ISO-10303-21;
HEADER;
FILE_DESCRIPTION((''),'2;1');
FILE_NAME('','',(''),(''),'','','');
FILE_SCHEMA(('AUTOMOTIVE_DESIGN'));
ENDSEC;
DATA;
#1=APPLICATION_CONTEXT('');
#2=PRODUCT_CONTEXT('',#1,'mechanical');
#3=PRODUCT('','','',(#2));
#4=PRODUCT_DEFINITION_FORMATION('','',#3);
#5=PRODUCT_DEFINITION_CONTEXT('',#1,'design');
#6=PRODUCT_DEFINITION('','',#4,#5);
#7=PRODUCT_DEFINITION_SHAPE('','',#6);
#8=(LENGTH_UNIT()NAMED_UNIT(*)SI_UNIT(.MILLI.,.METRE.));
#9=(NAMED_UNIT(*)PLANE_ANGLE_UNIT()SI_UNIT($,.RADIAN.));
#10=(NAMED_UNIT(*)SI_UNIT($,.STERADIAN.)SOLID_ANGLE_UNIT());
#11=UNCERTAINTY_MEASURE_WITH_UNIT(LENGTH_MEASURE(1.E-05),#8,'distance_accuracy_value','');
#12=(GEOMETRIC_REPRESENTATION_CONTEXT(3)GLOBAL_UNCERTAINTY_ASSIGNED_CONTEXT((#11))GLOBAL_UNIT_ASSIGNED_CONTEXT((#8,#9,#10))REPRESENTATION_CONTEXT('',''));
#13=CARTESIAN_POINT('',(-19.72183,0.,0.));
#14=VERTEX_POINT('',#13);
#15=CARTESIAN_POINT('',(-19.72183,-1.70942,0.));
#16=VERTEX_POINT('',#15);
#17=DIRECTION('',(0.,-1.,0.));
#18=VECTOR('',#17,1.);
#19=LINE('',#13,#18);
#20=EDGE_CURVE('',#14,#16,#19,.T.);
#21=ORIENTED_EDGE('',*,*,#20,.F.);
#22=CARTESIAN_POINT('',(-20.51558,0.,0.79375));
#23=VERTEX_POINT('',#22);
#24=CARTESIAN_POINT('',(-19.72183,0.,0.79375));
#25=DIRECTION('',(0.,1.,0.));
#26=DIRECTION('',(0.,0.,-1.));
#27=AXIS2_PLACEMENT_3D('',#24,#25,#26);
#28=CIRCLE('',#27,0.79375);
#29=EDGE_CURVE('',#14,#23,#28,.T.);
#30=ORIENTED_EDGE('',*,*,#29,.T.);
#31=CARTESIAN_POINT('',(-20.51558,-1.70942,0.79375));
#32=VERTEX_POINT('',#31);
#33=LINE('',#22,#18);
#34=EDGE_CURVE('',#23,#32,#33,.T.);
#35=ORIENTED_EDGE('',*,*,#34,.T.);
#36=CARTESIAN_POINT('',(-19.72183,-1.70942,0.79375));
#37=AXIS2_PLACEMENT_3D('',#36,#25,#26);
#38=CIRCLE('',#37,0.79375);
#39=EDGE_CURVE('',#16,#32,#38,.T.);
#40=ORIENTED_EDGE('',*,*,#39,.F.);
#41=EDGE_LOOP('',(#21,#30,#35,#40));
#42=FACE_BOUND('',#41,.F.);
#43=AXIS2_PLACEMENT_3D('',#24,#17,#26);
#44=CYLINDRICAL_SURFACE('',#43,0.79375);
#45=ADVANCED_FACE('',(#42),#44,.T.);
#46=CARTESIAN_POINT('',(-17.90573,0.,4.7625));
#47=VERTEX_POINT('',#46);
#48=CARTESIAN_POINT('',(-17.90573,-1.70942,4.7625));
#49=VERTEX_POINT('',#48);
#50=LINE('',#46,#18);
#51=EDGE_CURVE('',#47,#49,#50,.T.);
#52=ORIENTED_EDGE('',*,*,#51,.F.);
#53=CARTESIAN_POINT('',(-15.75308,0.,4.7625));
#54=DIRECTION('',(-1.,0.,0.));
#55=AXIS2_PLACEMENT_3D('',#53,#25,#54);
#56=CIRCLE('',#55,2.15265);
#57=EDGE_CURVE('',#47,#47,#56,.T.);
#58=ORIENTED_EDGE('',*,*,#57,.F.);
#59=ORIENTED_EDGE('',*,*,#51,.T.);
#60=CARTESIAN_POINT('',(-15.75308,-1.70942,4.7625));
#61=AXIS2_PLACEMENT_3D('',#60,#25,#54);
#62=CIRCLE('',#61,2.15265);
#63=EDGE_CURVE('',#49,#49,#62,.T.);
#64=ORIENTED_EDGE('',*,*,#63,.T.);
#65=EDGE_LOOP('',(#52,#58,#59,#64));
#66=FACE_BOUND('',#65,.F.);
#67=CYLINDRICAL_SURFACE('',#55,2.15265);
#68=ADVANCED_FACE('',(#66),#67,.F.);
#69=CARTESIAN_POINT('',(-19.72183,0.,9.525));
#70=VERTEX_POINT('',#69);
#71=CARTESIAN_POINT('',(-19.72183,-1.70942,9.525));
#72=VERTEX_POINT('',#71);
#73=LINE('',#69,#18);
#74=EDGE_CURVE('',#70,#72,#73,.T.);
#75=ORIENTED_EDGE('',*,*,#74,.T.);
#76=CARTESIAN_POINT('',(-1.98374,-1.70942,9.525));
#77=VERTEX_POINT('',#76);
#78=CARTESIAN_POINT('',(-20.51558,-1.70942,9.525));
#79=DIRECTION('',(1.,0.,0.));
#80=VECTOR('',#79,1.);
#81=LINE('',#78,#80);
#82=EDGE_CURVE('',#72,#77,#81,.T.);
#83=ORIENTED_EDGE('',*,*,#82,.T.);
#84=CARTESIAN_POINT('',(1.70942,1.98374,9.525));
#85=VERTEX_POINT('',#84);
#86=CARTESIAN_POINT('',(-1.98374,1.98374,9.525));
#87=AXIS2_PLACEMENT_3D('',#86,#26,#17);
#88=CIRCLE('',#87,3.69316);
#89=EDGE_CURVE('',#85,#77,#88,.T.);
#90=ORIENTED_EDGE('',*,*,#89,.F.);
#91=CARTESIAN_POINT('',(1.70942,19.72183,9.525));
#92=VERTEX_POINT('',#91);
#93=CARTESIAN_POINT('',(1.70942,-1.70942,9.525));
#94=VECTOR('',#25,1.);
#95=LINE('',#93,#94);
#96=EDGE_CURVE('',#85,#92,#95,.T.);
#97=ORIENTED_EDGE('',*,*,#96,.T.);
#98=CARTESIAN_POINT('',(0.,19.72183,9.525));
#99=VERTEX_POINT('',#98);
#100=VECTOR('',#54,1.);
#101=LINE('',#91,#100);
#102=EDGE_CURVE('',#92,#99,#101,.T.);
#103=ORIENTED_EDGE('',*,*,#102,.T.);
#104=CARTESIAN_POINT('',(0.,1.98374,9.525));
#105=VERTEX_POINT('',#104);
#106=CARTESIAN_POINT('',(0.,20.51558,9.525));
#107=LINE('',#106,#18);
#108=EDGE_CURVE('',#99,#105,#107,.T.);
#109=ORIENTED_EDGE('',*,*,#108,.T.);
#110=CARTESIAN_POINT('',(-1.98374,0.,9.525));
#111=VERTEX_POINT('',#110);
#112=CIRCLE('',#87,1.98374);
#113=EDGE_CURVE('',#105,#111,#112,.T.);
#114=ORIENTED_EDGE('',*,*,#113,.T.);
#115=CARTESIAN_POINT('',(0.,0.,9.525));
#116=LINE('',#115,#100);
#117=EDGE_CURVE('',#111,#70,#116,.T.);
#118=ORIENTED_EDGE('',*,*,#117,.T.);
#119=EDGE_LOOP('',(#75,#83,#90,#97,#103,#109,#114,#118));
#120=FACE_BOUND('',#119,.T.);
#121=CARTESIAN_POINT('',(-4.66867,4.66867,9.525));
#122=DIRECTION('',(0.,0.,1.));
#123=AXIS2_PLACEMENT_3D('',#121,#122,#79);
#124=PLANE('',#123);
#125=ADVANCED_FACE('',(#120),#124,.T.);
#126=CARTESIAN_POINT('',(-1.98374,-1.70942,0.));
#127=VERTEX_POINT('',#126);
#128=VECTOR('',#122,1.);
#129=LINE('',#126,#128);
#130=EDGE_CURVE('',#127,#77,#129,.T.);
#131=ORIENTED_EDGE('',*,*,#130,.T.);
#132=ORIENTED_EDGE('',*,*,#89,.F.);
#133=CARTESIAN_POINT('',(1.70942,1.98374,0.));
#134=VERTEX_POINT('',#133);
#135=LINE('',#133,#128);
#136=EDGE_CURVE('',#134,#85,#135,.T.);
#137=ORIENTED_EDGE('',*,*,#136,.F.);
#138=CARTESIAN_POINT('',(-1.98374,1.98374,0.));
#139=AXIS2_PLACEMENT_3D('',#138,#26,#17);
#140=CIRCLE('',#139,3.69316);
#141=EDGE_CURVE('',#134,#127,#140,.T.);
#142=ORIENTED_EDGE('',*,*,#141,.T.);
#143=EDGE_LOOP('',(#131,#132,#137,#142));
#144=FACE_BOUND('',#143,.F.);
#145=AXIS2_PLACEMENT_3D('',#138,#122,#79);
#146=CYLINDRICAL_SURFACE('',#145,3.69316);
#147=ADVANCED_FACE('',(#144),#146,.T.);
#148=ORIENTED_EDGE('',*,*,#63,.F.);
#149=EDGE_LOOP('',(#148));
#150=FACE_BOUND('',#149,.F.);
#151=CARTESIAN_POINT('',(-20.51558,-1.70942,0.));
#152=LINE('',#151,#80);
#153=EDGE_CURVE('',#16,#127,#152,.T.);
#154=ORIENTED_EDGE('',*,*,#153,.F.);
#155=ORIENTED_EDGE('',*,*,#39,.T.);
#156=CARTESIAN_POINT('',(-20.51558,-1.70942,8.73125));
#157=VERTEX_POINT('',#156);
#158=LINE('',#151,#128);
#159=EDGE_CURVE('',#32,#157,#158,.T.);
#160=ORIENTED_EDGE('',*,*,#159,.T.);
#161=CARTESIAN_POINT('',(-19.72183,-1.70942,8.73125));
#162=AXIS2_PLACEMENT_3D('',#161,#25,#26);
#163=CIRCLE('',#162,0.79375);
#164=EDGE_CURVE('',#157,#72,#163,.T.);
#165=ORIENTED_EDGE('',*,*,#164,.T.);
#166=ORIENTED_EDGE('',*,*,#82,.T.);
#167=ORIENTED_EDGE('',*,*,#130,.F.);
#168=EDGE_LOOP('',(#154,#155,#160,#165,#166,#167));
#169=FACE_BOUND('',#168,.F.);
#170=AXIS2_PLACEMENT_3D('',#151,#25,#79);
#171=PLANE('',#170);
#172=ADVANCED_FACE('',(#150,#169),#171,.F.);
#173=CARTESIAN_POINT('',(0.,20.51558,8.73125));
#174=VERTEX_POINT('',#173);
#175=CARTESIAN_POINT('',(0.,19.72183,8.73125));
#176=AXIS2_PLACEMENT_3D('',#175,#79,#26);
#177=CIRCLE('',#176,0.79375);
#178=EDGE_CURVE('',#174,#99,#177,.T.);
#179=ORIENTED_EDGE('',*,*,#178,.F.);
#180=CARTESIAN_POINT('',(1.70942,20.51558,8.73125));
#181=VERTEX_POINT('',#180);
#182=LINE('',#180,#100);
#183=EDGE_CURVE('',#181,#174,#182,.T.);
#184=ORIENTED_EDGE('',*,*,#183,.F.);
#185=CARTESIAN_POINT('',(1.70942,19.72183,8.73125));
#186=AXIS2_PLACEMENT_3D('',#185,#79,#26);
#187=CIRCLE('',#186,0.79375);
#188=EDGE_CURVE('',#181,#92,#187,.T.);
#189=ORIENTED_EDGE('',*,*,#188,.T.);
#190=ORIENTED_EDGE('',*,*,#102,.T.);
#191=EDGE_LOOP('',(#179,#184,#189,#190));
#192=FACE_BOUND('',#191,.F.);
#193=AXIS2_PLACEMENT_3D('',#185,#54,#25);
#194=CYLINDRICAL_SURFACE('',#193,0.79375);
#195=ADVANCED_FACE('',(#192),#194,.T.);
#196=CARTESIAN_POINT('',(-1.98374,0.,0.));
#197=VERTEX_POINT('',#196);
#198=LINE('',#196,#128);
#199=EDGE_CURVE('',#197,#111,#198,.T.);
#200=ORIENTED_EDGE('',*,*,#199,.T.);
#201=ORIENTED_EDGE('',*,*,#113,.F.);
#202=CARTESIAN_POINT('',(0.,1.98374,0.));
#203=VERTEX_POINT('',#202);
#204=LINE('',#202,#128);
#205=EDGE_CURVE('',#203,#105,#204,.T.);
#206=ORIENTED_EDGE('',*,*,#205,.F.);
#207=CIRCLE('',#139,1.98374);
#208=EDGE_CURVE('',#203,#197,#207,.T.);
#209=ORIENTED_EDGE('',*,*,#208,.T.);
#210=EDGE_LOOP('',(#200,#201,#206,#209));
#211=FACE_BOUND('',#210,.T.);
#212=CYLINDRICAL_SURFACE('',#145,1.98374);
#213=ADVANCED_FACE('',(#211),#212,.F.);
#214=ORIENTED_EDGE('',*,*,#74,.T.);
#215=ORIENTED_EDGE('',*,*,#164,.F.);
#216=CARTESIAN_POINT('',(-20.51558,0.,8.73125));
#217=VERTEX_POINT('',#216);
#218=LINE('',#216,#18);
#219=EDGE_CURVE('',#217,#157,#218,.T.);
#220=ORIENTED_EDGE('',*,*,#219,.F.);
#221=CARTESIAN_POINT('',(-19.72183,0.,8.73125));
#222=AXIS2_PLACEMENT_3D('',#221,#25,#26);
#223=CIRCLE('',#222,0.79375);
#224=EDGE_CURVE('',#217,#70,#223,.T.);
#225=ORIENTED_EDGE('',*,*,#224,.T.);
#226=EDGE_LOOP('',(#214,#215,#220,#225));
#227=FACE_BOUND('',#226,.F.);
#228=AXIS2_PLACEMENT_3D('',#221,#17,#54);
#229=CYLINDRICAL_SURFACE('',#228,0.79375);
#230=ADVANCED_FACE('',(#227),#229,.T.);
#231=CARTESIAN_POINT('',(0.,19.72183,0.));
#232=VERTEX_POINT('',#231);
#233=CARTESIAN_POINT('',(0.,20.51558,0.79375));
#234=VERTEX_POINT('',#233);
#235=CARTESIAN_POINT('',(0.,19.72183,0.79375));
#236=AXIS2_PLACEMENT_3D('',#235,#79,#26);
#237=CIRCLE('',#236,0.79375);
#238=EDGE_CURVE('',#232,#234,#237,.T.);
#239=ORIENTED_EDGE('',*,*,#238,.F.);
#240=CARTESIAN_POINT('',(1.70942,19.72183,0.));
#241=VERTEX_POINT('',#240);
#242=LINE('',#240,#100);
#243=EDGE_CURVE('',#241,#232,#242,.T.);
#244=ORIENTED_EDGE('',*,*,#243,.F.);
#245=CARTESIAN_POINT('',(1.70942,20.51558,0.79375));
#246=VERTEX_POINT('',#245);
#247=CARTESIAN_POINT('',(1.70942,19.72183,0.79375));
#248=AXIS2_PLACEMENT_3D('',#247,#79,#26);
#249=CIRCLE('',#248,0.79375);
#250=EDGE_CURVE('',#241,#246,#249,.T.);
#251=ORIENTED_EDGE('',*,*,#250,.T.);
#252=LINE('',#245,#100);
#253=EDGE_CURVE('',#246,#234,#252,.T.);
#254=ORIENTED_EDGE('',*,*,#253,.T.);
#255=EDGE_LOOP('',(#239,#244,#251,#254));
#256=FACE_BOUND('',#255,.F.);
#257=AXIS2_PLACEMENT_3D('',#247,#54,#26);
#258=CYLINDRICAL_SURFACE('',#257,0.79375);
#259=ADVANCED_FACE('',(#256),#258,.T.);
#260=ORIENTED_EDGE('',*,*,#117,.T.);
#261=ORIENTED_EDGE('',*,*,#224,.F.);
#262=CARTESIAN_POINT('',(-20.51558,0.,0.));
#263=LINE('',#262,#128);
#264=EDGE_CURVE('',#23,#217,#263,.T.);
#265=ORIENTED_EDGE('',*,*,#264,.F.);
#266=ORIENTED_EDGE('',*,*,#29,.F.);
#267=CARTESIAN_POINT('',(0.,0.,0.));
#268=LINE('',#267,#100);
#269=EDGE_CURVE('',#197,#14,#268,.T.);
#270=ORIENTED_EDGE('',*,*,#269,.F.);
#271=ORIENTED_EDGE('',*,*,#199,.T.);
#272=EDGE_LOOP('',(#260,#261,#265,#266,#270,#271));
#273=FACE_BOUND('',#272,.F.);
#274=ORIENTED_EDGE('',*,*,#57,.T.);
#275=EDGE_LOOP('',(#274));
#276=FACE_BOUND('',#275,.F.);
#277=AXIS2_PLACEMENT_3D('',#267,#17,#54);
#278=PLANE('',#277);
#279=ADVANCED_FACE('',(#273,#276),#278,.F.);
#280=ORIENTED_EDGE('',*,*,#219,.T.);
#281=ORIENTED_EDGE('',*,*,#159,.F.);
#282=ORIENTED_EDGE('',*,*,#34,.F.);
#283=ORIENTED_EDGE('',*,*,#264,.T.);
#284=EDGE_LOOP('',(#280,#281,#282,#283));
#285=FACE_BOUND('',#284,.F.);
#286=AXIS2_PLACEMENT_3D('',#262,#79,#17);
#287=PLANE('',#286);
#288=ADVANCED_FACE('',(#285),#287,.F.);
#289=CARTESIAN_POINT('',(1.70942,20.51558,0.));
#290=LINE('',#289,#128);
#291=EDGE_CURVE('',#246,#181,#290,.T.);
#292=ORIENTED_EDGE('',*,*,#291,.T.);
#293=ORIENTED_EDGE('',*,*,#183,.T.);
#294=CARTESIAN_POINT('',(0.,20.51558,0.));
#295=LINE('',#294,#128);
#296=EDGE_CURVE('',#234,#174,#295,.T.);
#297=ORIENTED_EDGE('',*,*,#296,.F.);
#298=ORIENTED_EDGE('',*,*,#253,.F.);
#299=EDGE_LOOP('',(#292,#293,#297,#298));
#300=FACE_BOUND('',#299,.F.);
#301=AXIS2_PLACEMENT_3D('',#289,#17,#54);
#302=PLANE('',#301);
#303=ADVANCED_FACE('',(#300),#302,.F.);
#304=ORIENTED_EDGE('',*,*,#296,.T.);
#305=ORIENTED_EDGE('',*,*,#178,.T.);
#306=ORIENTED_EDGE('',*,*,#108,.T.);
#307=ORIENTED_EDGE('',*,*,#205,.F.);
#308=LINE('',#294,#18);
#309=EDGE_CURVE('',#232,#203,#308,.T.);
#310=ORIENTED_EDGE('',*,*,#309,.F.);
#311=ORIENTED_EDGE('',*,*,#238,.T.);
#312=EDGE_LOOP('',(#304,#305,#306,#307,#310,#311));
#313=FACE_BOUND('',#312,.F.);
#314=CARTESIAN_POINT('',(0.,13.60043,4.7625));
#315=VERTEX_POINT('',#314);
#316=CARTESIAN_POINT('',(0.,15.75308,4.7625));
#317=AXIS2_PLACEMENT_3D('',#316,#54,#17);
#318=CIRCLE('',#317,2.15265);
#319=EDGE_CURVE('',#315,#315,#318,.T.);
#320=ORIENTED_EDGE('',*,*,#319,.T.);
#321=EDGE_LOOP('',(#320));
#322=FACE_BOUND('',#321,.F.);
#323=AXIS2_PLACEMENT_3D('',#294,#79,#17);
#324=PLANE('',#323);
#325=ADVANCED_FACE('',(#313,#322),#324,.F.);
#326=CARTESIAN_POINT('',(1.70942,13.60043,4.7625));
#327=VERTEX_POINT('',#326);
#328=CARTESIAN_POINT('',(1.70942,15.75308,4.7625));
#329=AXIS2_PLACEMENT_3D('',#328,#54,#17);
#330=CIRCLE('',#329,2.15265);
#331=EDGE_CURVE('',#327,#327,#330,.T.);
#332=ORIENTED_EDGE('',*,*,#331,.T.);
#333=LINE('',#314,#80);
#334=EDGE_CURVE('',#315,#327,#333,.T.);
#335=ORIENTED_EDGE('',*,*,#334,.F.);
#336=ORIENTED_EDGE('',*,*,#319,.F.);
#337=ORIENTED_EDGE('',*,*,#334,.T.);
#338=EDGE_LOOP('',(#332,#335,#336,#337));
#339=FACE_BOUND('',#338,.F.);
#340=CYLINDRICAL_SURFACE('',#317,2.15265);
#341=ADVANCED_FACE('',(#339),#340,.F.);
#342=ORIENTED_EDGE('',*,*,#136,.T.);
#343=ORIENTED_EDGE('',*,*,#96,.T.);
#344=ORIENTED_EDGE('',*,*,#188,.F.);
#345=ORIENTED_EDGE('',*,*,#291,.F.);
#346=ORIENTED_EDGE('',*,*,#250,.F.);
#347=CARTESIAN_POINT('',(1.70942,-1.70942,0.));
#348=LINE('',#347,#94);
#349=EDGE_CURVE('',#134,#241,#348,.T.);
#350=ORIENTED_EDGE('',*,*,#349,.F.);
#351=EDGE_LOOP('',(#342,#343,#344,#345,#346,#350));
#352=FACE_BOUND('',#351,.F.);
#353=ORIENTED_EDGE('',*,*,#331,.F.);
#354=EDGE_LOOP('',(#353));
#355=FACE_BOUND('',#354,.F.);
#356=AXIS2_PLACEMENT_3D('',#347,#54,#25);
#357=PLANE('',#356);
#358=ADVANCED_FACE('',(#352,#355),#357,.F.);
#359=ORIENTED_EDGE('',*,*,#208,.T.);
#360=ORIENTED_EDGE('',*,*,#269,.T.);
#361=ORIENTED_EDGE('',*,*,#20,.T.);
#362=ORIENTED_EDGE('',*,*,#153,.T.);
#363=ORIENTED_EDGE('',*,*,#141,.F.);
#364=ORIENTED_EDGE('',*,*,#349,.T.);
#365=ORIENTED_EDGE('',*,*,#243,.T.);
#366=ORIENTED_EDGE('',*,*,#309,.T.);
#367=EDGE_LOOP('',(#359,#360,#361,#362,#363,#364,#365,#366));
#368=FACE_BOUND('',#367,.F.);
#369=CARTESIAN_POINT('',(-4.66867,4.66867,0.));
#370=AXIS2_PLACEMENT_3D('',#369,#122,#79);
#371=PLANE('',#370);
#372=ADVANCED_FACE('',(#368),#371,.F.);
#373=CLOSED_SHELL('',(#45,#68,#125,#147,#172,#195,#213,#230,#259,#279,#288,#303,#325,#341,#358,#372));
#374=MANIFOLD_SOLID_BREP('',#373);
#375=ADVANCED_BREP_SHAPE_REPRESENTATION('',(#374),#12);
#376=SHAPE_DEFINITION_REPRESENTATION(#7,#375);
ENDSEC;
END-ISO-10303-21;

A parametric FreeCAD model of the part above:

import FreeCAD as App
import Part
import Sketcher
Q = App.Units.Quantity


def edges_at(feature, points):
    """Names of the edges that pass closest to the given points."""
    edges = feature.Shape.Edges
    near = lambda p: min(range(len(edges)), key=lambda i: edges[i].distToShape(Part.Vertex(*p))[0])
    return sorted({f"Edge{near(p) + 1}" for p in points})

doc = App.newDocument("Part")
body = doc.addObject("PartDesign::Body", "Body")

sketch1 = body.newObject("Sketcher::SketchObject", "Sketch")
sketch1.AttachmentSupport = (doc.getObject("XY_Plane"), [""])
sketch1.MapMode = "FlatFace"
sketch1.addGeometry(Part.LineSegment(App.Vector(0, 20.5, 0), App.Vector(0, 0, 0)), False)
sketch1.addGeometry(Part.LineSegment(App.Vector(0, 0, 0), App.Vector(-20.5, 0, 0)), False)
sketch1.addGeometry(Part.LineSegment(App.Vector(-20.5, 0, 0), App.Vector(-20.5, -1.7, 0)), False)
sketch1.addGeometry(Part.LineSegment(App.Vector(-20.5, -1.7, 0), App.Vector(1.7, -1.7, 0)), False)
sketch1.addGeometry(Part.LineSegment(App.Vector(1.7, -1.7, 0), App.Vector(1.7, 20.5, 0)), False)
sketch1.addGeometry(Part.LineSegment(App.Vector(1.7, 20.5, 0), App.Vector(0, 20.5, 0)), False)
sketch1.addConstraint(Sketcher.Constraint("Coincident", 0, 2, 1, 1))
sketch1.addConstraint(Sketcher.Constraint("Coincident", 1, 2, 2, 1))
sketch1.addConstraint(Sketcher.Constraint("Coincident", 2, 2, 3, 1))
sketch1.addConstraint(Sketcher.Constraint("Coincident", 3, 2, 4, 1))
sketch1.addConstraint(Sketcher.Constraint("Coincident", 4, 2, 5, 1))
sketch1.addConstraint(Sketcher.Constraint("Coincident", 5, 2, 0, 1))
sketch1.addConstraint(Sketcher.Constraint("Vertical", 0))
sketch1.addConstraint(Sketcher.Constraint("Horizontal", 1))
sketch1.addConstraint(Sketcher.Constraint("Vertical", 2))
sketch1.addConstraint(Sketcher.Constraint("Horizontal", 3))
sketch1.addConstraint(Sketcher.Constraint("Vertical", 4))
sketch1.addConstraint(Sketcher.Constraint("Horizontal", 5))
sketch1.addConstraint(Sketcher.Constraint("Coincident", 0, 2, -1, 1))
sketch1.addConstraint(Sketcher.Constraint("Equal", 1, 0))
sketch1.addConstraint(Sketcher.Constraint("Equal", 5, 2))
sketch1.addConstraint(Sketcher.Constraint("DistanceX", 3, 1, 3, 2, Q("0.875 in")))
sketch1.addConstraint(Sketcher.Constraint("DistanceX", 1, 2, 1, 1, Q("0.8077 in")))
pad1 = body.newObject("PartDesign::Pad", "Pad")
pad1.Profile = sketch1
pad1.Length = Q("0.375 in")
doc.recompute()

fillet = body.newObject("PartDesign::Fillet", "Fillet")
fillet.Base = (pad1, edges_at(pad1, [(0, 0, 4.763)]))
fillet.Radius = Q("0.0781 in")
doc.recompute()

fillet2 = body.newObject("PartDesign::Fillet", "Fillet001")
fillet2.Base = (fillet, edges_at(fillet, [(1.709, -1.709, 4.763)]))
fillet2.Radius = Q("0.1454 in")

sketch2 = body.newObject("Sketcher::SketchObject", "Sketch001")
sketch2.AttachmentSupport = (doc.getObject("XZ_Plane"), [""])
sketch2.MapMode = "FlatFace"
sketch2.addGeometry(Part.Circle(App.Vector(-15.8, 4.8, 0), App.Vector(0, 0, 1), 2.2), False)
sketch2.addConstraint(Sketcher.Constraint("Diameter", 0, Q("0.1695 in")))
sketch2.addConstraint(Sketcher.Constraint("DistanceY", -1, 1, 0, 3, Q("0.1875 in")))
sketch2.addConstraint(Sketcher.Constraint("DistanceX", 0, 3, -1, 1, Q("0.6202 in")))
pocket1 = body.newObject("PartDesign::Pocket", "Pocket")
pocket1.Profile = sketch2
pocket1.Type = "ThroughAll"
pocket1.Reversed = True

sketch3 = body.newObject("Sketcher::SketchObject", "Sketch002")
sketch3.AttachmentSupport = (doc.getObject("YZ_Plane"), [""])
sketch3.MapMode = "FlatFace"
sketch3.addGeometry(Part.Circle(App.Vector(15.8, 4.8, 0), App.Vector(0, 0, 1), 2.2), False)
sketch3.addConstraint(Sketcher.Constraint("Diameter", 0, Q("0.1695 in")))
sketch3.addConstraint(Sketcher.Constraint("DistanceY", -1, 1, 0, 3, Q("0.1875 in")))
sketch3.addConstraint(Sketcher.Constraint("DistanceX", -1, 1, 0, 3, Q("0.6202 in")))
pocket2 = body.newObject("PartDesign::Pocket", "Pocket001")
pocket2.Profile = sketch3
pocket2.Type = "ThroughAll"
pocket2.Reversed = True
doc.recompute()

fillet3 = body.newObject("PartDesign::Fillet", "Fillet002")
fillet3.Base = (pocket2, edges_at(pocket2, [
    (0.855, 20.516, 0),
    (0.855, 20.516, 9.525),
    (-20.516, -0.855, 9.525),
    (-20.516, -0.855, 0),
]))
fillet3.Radius = Q("0.03125 in")

doc.recompute()
